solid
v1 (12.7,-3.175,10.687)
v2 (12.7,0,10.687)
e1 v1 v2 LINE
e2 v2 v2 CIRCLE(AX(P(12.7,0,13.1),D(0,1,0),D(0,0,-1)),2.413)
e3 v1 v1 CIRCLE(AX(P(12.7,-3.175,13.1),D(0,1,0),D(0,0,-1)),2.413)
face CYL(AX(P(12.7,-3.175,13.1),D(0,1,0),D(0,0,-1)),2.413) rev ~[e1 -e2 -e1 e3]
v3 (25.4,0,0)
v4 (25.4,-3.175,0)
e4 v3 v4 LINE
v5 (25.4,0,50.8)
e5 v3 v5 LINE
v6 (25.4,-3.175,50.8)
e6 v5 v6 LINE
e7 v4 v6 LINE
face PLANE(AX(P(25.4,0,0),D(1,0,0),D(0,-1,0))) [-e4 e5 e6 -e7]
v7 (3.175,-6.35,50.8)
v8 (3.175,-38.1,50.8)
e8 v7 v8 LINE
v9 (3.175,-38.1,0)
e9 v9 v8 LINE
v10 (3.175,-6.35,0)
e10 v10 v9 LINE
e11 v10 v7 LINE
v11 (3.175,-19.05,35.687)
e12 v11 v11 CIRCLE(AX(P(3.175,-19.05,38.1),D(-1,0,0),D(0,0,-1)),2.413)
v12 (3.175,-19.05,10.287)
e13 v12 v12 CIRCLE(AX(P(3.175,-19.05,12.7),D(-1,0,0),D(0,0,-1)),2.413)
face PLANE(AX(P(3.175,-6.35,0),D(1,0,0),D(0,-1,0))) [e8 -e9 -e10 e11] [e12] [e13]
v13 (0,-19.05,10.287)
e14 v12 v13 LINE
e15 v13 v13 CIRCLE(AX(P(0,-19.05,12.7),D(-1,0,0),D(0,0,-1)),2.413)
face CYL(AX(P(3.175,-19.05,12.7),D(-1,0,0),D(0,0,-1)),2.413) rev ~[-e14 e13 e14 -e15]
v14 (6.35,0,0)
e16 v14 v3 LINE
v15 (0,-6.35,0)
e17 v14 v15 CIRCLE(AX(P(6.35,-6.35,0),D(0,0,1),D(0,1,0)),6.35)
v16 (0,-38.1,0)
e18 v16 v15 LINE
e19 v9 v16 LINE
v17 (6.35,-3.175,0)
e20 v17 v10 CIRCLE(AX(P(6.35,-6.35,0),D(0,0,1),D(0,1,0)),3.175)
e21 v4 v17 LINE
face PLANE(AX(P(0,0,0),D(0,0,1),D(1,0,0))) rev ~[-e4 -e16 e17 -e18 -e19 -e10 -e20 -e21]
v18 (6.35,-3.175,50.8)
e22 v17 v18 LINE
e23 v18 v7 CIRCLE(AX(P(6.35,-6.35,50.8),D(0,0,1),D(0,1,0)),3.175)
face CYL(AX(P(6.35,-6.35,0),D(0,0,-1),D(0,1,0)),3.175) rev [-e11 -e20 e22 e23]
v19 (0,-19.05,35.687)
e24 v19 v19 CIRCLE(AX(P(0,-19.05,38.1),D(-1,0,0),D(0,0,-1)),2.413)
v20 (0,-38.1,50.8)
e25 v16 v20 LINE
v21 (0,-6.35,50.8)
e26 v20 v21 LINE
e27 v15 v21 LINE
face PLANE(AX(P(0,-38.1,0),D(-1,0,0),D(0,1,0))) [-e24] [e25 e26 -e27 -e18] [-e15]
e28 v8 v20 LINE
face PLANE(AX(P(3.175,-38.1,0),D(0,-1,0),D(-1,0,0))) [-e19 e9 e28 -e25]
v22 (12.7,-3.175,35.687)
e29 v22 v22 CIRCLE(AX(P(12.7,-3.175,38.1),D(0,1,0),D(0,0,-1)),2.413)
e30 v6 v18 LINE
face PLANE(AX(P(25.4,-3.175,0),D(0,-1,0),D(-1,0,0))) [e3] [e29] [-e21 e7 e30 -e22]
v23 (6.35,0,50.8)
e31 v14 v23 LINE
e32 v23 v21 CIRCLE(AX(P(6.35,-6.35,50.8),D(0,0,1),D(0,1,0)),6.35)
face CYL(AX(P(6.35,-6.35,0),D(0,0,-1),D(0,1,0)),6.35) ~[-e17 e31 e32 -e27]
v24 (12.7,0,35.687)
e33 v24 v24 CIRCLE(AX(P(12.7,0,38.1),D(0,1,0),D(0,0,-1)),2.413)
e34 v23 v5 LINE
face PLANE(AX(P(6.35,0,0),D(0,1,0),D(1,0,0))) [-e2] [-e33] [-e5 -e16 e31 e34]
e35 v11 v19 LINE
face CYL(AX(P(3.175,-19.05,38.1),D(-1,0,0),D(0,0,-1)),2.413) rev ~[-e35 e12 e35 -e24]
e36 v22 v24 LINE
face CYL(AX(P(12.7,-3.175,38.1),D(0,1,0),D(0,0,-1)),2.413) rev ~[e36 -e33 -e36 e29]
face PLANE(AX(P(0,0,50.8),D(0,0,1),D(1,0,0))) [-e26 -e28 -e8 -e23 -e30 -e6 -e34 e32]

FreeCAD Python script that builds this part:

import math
import FreeCAD as App
import Part
import Sketcher
Q = App.Units.Quantity

doc = App.newDocument("Part")
body = doc.addObject("PartDesign::Body", "Body")

# Sketch on XY plane
sketch1 = body.newObject("Sketcher::SketchObject", "Sketch")
sketch1.AttachmentSupport = (doc.getObject("XY_Plane"), [""])
sketch1.MapMode = "FlatFace"
sketch1.addGeometry(Part.LineSegment(App.Vector(25.4, 0, 0), App.Vector(6.3, 0, 0)), False)
sketch1.addGeometry(Part.ArcOfCircle(Part.Circle(App.Vector(6.3, -6.3, 0), App.Vector(0, 0, 1), 6.3), math.radians(90), math.radians(180)), False)
sketch1.addGeometry(Part.LineSegment(App.Vector(0, -6.3, 0), App.Vector(0, -38.1, 0)), False)
sketch1.addGeometry(Part.LineSegment(App.Vector(0, -38.1, 0), App.Vector(3.2, -38.1, 0)), False)
sketch1.addGeometry(Part.LineSegment(App.Vector(3.2, -38.1, 0), App.Vector(3.2, -6.3, 0)), False)
sketch1.addGeometry(Part.ArcOfCircle(Part.Circle(App.Vector(6.3, -6.3, 0), App.Vector(0, 0, 1), 3.2), math.radians(90), math.radians(180)), False)
sketch1.addGeometry(Part.LineSegment(App.Vector(6.3, -3.2, 0), App.Vector(25.4, -3.2, 0)), False)
sketch1.addGeometry(Part.LineSegment(App.Vector(25.4, -3.2, 0), App.Vector(25.4, 0, 0)), False)
sketch1.addConstraint(Sketcher.Constraint("Tangent", 0, 2, 1, 1))
sketch1.addConstraint(Sketcher.Constraint("Tangent", 1, 2, 2, 1))
sketch1.addConstraint(Sketcher.Constraint("Coincident", 2, 2, 3, 1))
sketch1.addConstraint(Sketcher.Constraint("Coincident", 3, 2, 4, 1))
sketch1.addConstraint(Sketcher.Constraint("Tangent", 4, 2, 5, 2))
sketch1.addConstraint(Sketcher.Constraint("Tangent", 5, 1, 6, 1))
sketch1.addConstraint(Sketcher.Constraint("Coincident", 6, 2, 7, 1))
sketch1.addConstraint(Sketcher.Constraint("Coincident", 7, 2, 0, 1))
sketch1.addConstraint(Sketcher.Constraint("Horizontal", 0))
sketch1.addConstraint(Sketcher.Constraint("Vertical", 2))
sketch1.addConstraint(Sketcher.Constraint("Horizontal", 3))
sketch1.addConstraint(Sketcher.Constraint("Vertical", 4))
sketch1.addConstraint(Sketcher.Constraint("Horizontal", 6))
sketch1.addConstraint(Sketcher.Constraint("Vertical", 7))
sketch1.addConstraint(Sketcher.Constraint("Coincident", 5, 3, 1, 3))
sketch1.addConstraint(Sketcher.Constraint("PointOnObject", 0, 2, -1))
sketch1.addConstraint(Sketcher.Constraint("PointOnObject", 1, 2, -2))
sketch1.addConstraint(Sketcher.Constraint("Radius", 1, Q("0.25 in")))
sketch1.addConstraint(Sketcher.Constraint("DistanceX", -1, 1, 6, 2, Q("1 in")))
sketch1.addConstraint(Sketcher.Constraint("Radius", 5, Q("0.125 in")))
sketch1.addConstraint(Sketcher.Constraint("DistanceY", 2, 2, -1, 1, Q("1.5 in")))
pad1 = body.newObject("PartDesign::Pad", "Pad")
pad1.Profile = sketch1
pad1.Length = Q("2 in")

# Sketch on XZ plane
sketch2 = body.newObject("Sketcher::SketchObject", "Sketch001")
sketch2.AttachmentSupport = (doc.getObject("XZ_Plane"), [""])
sketch2.MapMode = "FlatFace"
sketch2.AttachmentOffset = App.Placement(App.Vector(0, 0, 0.125 * 25.4), App.Rotation())
sketch2.addGeometry(Part.Circle(App.Vector(12.7, 38.1, 0), App.Vector(0, 0, 1), 2.4), False)
sketch2.addConstraint(Sketcher.Constraint("Diameter", 0, Q("0.19 in")))
sketch2.addConstraint(Sketcher.Constraint("DistanceX", -1, 1, 0, 3, Q("0.5 in")))
sketch2.addConstraint(Sketcher.Constraint("DistanceY", -1, 1, 0, 3, Q("1.5 in")))
doc.recompute()
hole = body.newObject("PartDesign::Hole", "Hole")
hole.Profile = sketch2
hole.ThreadType = "None"
hole.Diameter = Q("0.19 in")
hole.DepthType = "Dimension"
hole.Depth = Q("1 in")
hole.DrillPoint = "Angled"
hole.DrillPointAngle = 118
doc.recompute()

linearpattern = body.newObject("PartDesign::LinearPattern", "LinearPattern")
linearpattern.Originals = [hole]
linearpattern.Direction = (doc.getObject("Z_Axis"), [""])
linearpattern.Mode = "offset"
linearpattern.Offset = 25
linearpattern.Occurrences = 2
linearpattern.Reversed = True
body.Tip = linearpattern

# Sketch on YZ plane
sketch3 = body.newObject("Sketcher::SketchObject", "Sketch002")
sketch3.AttachmentSupport = (doc.getObject("YZ_Plane"), [""])
sketch3.MapMode = "FlatFace"
sketch3.AttachmentOffset = App.Placement(App.Vector(0, 0, 0.125 * 25.4), App.Rotation())
sketch3.addGeometry(Part.Circle(App.Vector(-19.1, 38.1, 0), App.Vector(0, 0, 1), 2.4), False)
sketch3.addConstraint(Sketcher.Constraint("Diameter", 0, Q("0.19 in")))
sketch3.addConstraint(Sketcher.Constraint("DistanceY", -1, 1, 0, 3, Q("1.5 in")))
sketch3.addConstraint(Sketcher.Constraint("DistanceX", 0, 3, -1, 1, Q("0.75 in")))
doc.recompute()
hole2 = body.newObject("PartDesign::Hole", "Hole001")
hole2.Profile = sketch3
hole2.ThreadType = "None"
hole2.Diameter = Q("0.19 in")
hole2.DepthType = "Dimension"
hole2.Depth = Q("1 in")
hole2.DrillPoint = "Angled"
hole2.DrillPointAngle = 118
doc.recompute()

linearpattern2 = body.newObject("PartDesign::LinearPattern", "LinearPattern001")
linearpattern2.Originals = [hole2]
linearpattern2.Direction = (doc.getObject("Z_Axis"), [""])
linearpattern2.Mode = "offset"
linearpattern2.Offset = Q("1 in")
linearpattern2.Occurrences = 2
linearpattern2.Reversed = True
body.Tip = linearpattern2

doc.recompute()
